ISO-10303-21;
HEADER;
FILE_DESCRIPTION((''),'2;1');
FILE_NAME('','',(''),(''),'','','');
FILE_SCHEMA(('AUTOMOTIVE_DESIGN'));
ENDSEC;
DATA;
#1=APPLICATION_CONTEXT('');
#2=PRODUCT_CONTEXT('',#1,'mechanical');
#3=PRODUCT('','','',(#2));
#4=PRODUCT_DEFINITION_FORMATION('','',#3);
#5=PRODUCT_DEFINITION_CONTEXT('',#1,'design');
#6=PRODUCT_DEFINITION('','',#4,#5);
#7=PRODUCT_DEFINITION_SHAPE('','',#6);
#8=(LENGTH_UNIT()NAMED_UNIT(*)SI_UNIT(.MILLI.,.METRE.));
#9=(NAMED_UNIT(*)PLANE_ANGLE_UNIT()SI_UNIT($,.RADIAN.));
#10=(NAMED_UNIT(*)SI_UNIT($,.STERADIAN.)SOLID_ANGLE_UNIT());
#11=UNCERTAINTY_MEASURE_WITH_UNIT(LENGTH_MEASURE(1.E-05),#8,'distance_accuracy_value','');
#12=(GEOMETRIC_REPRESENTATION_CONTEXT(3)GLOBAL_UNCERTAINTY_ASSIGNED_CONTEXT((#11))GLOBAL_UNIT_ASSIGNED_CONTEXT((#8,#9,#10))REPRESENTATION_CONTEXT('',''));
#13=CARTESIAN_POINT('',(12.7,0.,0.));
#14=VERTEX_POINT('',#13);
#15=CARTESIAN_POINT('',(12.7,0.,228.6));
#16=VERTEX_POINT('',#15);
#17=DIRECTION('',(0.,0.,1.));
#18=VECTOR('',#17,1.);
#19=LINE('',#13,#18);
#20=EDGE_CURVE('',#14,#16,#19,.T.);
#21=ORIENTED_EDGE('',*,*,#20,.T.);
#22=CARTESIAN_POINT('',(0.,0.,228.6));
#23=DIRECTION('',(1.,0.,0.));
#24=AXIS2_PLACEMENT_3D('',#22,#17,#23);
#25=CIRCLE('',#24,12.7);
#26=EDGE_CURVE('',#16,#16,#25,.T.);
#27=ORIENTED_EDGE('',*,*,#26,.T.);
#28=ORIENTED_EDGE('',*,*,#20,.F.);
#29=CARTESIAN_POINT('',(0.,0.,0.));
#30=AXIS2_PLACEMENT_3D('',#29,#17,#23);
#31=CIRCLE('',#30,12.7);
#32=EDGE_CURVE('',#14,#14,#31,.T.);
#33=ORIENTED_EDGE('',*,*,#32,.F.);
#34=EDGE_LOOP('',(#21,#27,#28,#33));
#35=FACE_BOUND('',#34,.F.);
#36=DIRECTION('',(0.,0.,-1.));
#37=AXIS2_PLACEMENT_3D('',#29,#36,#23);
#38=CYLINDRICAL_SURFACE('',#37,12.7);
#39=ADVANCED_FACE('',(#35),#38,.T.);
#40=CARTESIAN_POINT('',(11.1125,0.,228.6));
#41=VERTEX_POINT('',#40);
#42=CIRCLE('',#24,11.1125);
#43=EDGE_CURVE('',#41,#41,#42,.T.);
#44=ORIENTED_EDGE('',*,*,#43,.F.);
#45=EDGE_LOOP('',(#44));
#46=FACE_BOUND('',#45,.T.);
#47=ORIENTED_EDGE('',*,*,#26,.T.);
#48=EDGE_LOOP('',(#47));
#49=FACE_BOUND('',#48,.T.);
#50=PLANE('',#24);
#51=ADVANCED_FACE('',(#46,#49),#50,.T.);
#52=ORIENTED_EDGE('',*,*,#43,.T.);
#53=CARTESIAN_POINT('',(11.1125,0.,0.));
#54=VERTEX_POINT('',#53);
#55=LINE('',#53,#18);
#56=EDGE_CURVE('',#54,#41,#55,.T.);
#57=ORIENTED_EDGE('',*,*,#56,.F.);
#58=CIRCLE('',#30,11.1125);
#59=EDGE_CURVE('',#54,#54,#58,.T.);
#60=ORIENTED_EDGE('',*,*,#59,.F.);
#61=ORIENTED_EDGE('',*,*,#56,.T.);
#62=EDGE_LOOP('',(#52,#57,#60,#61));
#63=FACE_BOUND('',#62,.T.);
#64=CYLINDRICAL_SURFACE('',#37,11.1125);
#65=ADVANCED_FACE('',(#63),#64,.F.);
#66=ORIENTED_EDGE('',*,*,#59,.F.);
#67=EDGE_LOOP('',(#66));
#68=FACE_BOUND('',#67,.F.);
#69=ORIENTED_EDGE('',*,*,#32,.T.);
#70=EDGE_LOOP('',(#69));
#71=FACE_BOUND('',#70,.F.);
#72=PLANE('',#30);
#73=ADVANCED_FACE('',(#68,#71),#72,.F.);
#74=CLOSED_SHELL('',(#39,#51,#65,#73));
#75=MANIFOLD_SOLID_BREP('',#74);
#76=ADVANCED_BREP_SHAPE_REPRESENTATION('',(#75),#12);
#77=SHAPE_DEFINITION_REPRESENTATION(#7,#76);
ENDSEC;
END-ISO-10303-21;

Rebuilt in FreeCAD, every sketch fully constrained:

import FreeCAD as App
import Part
import Sketcher
from FreeCAD import Vector
Q = App.Units.Quantity

doc = App.newDocument("Part")
body = doc.addObject("PartDesign::Body", "Body")

sketch1 = doc.addObject("Sketcher::SketchObject", "Sketch")
body.addObject(sketch1)
sketch1.AttachmentSupport = (doc.XY_Plane, [""])
sketch1.MapMode = "FlatFace"
sketch1.addGeometry(Part.Circle(Vector(0, 0, 0), Vector(0, 0, 1), 13), False)
sketch1.addGeometry(Part.Circle(Vector(0, 0, 0), Vector(0, 0, 1), 11), False)
sketch1.addConstraint(Sketcher.Constraint("Coincident", 0, 3, -1, 1))
sketch1.addConstraint(Sketcher.Constraint("Coincident", 1, 3, -1, 1))
sketch1.addConstraint(Sketcher.Constraint("Diameter", 0, Q("1 in")))
sketch1.addConstraint(Sketcher.Constraint("Diameter", 1, Q("0.875 in")))
pad1 = doc.addObject("PartDesign::Pad", "Pad")
body.addObject(pad1)
pad1.Profile = sketch1
pad1.Length = Q("9 in")

doc.recompute()
